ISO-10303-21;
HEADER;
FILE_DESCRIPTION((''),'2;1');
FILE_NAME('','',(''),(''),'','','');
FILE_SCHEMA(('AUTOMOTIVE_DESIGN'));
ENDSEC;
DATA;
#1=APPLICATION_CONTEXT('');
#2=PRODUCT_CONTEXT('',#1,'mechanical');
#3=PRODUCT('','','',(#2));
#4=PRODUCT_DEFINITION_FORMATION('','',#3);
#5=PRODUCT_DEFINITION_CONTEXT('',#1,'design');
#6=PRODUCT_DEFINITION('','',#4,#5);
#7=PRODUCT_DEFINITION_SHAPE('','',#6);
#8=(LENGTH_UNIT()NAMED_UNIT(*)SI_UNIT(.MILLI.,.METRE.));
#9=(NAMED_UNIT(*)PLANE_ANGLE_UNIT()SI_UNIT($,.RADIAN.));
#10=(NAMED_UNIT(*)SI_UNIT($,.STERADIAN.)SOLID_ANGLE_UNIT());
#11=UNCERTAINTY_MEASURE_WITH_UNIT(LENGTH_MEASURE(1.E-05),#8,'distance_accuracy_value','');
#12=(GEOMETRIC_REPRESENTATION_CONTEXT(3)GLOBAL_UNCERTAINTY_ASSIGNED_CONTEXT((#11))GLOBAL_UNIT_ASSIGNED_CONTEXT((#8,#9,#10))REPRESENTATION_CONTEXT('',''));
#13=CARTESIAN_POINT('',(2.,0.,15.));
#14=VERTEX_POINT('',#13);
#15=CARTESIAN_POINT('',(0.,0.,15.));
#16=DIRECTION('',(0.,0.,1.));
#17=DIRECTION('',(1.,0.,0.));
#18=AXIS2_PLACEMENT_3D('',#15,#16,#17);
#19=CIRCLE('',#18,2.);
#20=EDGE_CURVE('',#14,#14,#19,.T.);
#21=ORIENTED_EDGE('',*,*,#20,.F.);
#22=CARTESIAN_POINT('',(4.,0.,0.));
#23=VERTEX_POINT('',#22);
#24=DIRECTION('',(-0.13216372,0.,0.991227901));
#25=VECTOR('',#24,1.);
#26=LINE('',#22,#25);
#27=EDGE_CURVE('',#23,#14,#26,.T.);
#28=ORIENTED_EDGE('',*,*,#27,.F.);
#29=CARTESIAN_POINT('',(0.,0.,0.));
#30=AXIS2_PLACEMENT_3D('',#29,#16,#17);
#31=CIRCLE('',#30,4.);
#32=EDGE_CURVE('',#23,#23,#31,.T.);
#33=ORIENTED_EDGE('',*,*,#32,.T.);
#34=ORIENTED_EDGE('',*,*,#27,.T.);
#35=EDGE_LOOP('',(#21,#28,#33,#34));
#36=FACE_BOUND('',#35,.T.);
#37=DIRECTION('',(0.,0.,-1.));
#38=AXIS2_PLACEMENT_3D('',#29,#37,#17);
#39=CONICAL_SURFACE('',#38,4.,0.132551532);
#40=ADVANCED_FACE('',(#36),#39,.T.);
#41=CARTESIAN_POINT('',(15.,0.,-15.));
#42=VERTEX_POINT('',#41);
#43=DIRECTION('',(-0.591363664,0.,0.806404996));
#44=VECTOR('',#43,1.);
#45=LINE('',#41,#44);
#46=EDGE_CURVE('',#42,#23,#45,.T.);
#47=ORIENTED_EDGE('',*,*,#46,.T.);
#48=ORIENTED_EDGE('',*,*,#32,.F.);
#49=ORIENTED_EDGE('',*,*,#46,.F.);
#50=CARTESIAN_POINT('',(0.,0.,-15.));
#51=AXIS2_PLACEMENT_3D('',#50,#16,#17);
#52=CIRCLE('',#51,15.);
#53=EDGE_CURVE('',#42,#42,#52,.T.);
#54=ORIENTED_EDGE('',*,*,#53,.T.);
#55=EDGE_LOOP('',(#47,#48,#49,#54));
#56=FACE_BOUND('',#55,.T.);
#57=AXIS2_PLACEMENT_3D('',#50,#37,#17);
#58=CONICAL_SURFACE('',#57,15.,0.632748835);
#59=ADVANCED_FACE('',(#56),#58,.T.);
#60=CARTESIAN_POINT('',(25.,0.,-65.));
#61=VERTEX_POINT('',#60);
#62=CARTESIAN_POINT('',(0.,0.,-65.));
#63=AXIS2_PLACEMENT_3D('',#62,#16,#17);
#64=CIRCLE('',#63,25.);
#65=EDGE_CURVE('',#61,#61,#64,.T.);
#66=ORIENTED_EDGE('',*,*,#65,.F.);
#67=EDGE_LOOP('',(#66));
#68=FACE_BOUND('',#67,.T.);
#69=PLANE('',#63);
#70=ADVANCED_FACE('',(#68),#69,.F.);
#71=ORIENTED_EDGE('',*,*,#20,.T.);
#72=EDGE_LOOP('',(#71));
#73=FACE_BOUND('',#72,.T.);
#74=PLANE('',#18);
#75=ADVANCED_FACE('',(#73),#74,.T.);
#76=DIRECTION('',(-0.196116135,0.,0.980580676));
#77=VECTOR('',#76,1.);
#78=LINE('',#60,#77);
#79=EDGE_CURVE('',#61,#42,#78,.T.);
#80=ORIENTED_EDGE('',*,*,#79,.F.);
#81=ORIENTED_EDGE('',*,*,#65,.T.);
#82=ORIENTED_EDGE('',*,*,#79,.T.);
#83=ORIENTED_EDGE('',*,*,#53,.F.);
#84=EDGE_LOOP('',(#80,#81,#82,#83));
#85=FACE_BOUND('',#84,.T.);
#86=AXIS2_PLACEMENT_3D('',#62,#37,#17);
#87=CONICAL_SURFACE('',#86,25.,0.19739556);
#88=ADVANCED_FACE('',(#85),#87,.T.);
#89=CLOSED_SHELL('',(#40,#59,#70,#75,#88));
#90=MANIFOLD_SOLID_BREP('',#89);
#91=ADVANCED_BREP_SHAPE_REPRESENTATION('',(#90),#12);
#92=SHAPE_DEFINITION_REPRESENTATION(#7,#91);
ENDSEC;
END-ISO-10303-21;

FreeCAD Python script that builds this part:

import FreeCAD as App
import Part
import Sketcher

V = App.Vector


def add_polygon(sketch, points):
    """Adds a closed chain of lines whose ends are joined by coincident constraints."""
    first, n = sketch.GeometryCount, len(points)
    for a, b in zip(points, points[1:] + points[:1]):
        sketch.addGeometry(Part.LineSegment(App.Vector(*a, 0), App.Vector(*b, 0)), False)
    for i in range(n):
        sketch.addConstraint(Sketcher.Constraint("Coincident", first + i, 2, first + (i + 1) % n, 1))

doc = App.newDocument("Part")
body = doc.addObject("PartDesign::Body", "Body")

# Sketch on XZ plane
sketch1 = body.newObject("Sketcher::SketchObject", "Sketch")
sketch1.AttachmentSupport = (doc.getObject("XZ_Plane"), [""])
sketch1.MapMode = "FlatFace"
add_polygon(sketch1, [(0, -15), (15, -15), (4, 0), (0, 0)])  # lines 0-3
sketch1.addConstraint(Sketcher.Constraint("Horizontal", 0))
sketch1.addConstraint(Sketcher.Constraint("Horizontal", 2))
sketch1.addConstraint(Sketcher.Constraint("Vertical", 3))
sketch1.addConstraint(Sketcher.Constraint("Coincident", 2, 2, -1, 1))
sketch1.addConstraint(Sketcher.Constraint("Equal", 0, 3))
sketch1.addConstraint(Sketcher.Constraint("DistanceX", 0, 1, 0, 2, 15.0))
sketch1.addConstraint(Sketcher.Constraint("DistanceX", 2, 2, 2, 1, 4.0))
revolution = body.newObject("PartDesign::Revolution", "Revolution")
revolution.Profile = sketch1
revolution.ReferenceAxis = (sketch1, ["V_Axis"])
revolution.Angle = 360
body2 = doc.addObject("PartDesign::Body", "Body001")

# Sketch on XZ plane
sketch2 = body2.newObject("Sketcher::SketchObject", "Sketch001")
sketch2.AttachmentSupport = (doc.getObject("XZ_Plane001"), [""])
sketch2.MapMode = "FlatFace"
add_polygon(sketch2, [(0, -65), (25, -65), (15, -15), (0, -15)])  # lines 0-3
sketch2.addConstraint(Sketcher.Constraint("Horizontal", 0))
sketch2.addConstraint(Sketcher.Constraint("Horizontal", 2))
sketch2.addConstraint(Sketcher.Constraint("Vertical", 3))
sketch2.addConstraint(Sketcher.Constraint("PointOnObject", 2, 2, -2))
sketch2.addConstraint(Sketcher.Constraint("DistanceX", 0, 1, 0, 2, 25.0))
sketch2.addConstraint(Sketcher.Constraint("DistanceX", 2, 2, 2, 1, 15.0))
sketch2.addConstraint(Sketcher.Constraint("DistanceY", 3, 2, 3, 1, 50.0))
sketch2.addConstraint(Sketcher.Constraint("DistanceY", 0, 2, -1, 1, 65.0))
revolution2 = body2.newObject("PartDesign::Revolution", "Revolution001")
revolution2.Profile = sketch2
revolution2.ReferenceAxis = (sketch2, ["V_Axis"])
revolution2.Angle = 360
body3 = doc.addObject("PartDesign::Body", "Body002")

# Sketch on XZ plane
sketch3 = body3.newObject("Sketcher::SketchObject", "Sketch002")
sketch3.AttachmentSupport = (doc.getObject("XZ_Plane002"), [""])
sketch3.MapMode = "FlatFace"
add_polygon(sketch3, [(0, 0), (4, 0), (2, 15), (0, 15)])  # lines 0-3
sketch3.addConstraint(Sketcher.Constraint("Horizontal", 0))
sketch3.addConstraint(Sketcher.Constraint("Horizontal", 2))
sketch3.addConstraint(Sketcher.Constraint("Vertical", 3))
sketch3.addConstraint(Sketcher.Constraint("Coincident", 3, 2, -1, 1))
sketch3.addConstraint(Sketcher.Constraint("DistanceX", 0, 1, 0, 2, 4.0))
sketch3.addConstraint(Sketcher.Constraint("DistanceX", 2, 2, 2, 1, 2.0))
sketch3.addConstraint(Sketcher.Constraint("DistanceY", 3, 2, 3, 1, 15.0))
revolution3 = body3.newObject("PartDesign::Revolution", "Revolution002")
revolution3.Profile = sketch3
revolution3.ReferenceAxis = (sketch3, ["V_Axis"])
revolution3.Angle = 360
doc.recompute()

boolean = body3.newObject("PartDesign::Boolean", "Boolean")
boolean.Type = "Fuse"
boolean.addObjects([body])
doc.recompute()

boolean2 = body3.newObject("PartDesign::Boolean", "Boolean001")
boolean2.Type = "Fuse"
boolean2.addObjects([body2])

doc.recompute()
